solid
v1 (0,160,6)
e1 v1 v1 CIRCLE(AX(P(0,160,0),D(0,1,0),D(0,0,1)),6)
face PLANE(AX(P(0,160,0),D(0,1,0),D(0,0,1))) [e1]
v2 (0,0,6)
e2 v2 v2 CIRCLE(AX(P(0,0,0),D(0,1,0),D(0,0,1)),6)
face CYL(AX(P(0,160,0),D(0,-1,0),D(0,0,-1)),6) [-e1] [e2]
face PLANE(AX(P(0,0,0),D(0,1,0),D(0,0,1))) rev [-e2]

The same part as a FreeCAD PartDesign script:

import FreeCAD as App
import Part
import Sketcher

V = App.Vector
Q = App.Units.Quantity

doc = App.newDocument("Part")
body = doc.addObject("PartDesign::Body", "Body")

sketch1 = body.newObject("Sketcher::SketchObject", "Sketch")
sketch1.AttachmentSupport = (doc.getObject("XZ_Plane"), [""])
sketch1.MapMode = "FlatFace"
sketch1.addGeometry(Part.Circle(V(0, 0, 0), V(0, 0, 1), 6), False)
sketch1.addConstraint([
    Sketcher.Constraint("Coincident", 0, 3, -1, 1),
    Sketcher.Constraint("Diameter", 0, Q("12 mm")),
])
pad1 = body.newObject("PartDesign::Pad", "Pad")
pad1.Profile = sketch1
pad1.Length = 160
pad1.Reversed = True

doc.recompute()
